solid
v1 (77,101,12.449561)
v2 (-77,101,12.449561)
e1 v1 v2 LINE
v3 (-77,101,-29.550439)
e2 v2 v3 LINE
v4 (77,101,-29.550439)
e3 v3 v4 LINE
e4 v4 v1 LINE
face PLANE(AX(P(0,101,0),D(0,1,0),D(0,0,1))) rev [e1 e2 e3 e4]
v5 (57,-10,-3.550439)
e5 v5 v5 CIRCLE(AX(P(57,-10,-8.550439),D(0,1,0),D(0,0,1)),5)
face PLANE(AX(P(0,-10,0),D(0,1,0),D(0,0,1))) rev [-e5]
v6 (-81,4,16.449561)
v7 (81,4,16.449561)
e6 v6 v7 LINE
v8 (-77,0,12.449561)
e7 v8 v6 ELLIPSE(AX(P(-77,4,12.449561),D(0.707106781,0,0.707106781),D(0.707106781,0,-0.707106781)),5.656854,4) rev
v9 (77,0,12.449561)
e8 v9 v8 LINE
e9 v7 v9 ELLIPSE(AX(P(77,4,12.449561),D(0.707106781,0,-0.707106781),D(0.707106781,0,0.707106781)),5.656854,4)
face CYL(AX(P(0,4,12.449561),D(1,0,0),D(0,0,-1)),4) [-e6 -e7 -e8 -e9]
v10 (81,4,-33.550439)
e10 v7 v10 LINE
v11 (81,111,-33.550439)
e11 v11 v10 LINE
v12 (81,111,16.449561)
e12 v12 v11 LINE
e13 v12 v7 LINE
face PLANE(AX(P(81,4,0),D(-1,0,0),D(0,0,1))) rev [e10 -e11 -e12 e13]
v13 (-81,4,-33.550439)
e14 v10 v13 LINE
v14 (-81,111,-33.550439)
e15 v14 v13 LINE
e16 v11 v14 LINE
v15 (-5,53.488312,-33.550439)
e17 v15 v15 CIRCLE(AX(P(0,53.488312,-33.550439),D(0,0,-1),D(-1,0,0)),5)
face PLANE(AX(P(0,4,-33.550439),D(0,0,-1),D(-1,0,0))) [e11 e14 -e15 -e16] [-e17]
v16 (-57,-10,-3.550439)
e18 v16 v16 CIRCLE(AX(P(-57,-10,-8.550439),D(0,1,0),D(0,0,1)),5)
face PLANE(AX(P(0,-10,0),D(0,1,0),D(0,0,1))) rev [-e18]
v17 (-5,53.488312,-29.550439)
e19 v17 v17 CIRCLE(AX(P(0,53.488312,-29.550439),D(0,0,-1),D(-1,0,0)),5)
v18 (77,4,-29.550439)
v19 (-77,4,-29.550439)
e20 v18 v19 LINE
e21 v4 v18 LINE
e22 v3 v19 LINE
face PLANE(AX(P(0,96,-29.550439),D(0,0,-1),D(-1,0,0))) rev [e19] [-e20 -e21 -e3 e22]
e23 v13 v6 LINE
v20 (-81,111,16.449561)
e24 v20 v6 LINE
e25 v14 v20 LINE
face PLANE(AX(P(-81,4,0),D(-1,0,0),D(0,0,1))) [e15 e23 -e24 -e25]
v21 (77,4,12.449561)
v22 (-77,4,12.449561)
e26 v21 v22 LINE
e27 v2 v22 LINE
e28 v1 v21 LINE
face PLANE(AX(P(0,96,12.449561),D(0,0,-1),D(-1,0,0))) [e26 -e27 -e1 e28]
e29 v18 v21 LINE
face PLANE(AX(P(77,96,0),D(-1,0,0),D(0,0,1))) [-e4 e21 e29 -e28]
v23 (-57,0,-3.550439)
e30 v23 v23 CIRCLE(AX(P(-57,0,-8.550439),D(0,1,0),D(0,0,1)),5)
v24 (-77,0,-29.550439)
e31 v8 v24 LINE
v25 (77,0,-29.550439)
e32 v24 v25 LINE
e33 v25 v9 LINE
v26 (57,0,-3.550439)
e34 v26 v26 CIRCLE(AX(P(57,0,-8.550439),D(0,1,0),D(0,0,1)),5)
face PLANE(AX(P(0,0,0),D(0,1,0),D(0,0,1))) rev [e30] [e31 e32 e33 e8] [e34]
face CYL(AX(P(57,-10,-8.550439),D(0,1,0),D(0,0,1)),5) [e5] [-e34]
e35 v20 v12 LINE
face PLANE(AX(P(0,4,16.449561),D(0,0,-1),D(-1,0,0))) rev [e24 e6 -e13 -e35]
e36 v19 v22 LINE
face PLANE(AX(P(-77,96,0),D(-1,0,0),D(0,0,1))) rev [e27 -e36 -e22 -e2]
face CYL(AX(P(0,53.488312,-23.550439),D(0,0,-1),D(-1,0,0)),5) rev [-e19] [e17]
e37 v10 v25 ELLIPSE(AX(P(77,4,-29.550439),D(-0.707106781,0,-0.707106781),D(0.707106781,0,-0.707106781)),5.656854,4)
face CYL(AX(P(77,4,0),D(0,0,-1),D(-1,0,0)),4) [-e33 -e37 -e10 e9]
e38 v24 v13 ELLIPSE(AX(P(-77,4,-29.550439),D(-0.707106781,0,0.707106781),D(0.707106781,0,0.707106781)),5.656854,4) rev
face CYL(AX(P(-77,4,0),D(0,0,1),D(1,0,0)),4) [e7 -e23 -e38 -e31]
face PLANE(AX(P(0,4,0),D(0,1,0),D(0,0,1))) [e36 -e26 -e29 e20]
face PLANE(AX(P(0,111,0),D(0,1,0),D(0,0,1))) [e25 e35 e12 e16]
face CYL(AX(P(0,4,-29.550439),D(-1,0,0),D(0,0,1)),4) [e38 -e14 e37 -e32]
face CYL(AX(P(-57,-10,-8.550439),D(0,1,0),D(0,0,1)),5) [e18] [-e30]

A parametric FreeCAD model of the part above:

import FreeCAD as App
import Part
import Sketcher

V = App.Vector
Q = App.Units.Quantity


def edges_at(feature, points):
    """Names of the edges that pass closest to the given points."""
    edges = feature.Shape.Edges
    near = lambda p: min(range(len(edges)), key=lambda i: edges[i].distToShape(Part.Vertex(*p))[0])
    return sorted({f"Edge{near(p) + 1}" for p in points})

doc = App.newDocument("Part")
body = doc.addObject("PartDesign::Body", "Body")

# Sketch on XZ plane
sketch1 = body.newObject("Sketcher::SketchObject", "Sketch")
sketch1.AttachmentSupport = (doc.getObject("XZ_Plane"), [""])
sketch1.MapMode = "FlatFace"
sketch1.addGeometry(Part.Circle(V(-57, -8.550439, 0), V(0, 0, 1), 5), False)
sketch1.addConstraint([
    Sketcher.Constraint("Diameter", 0, Q("10 mm")),
    Sketcher.Constraint("DistanceX", 0, 3, -1, 1, Q("57 mm")),
    Sketcher.Constraint("DistanceY", 0, 3, -1, 1, Q("8.550439 mm")),
])
pad1 = body.newObject("PartDesign::Pad", "Pad")
pad1.Profile = sketch1
pad1.Length = 10
body2 = doc.addObject("PartDesign::Body", "Body001")

# Sketch on XZ plane
sketch2 = body2.newObject("Sketcher::SketchObject", "Sketch001")
sketch2.AttachmentSupport = (doc.getObject("XZ_Plane001"), [""])
sketch2.MapMode = "FlatFace"
sketch2.addGeometry(Part.Circle(V(57, -8.550439, 0), V(0, 0, 1), 5), False)
sketch2.addConstraint([
    Sketcher.Constraint("Diameter", 0, Q("10 mm")),
    Sketcher.Constraint("DistanceX", -1, 1, 0, 3, Q("57 mm")),
    Sketcher.Constraint("DistanceY", 0, 3, -1, 1, Q("8.550439 mm")),
])
pad2 = body2.newObject("PartDesign::Pad", "Pad001")
pad2.Profile = sketch2
pad2.Length = 10
body.AllowCompound = True
doc.recompute()

boolean = body.newObject("PartDesign::Boolean", "Boolean")
boolean.Type = "Fuse"
boolean.addObjects([body2])

# Sketch on XZ plane
sketch3 = body.newObject("Sketcher::SketchObject", "Sketch002")
sketch3.AttachmentSupport = (doc.getObject("XZ_Plane"), [""])
sketch3.MapMode = "FlatFace"
sketch3.AttachmentOffset = App.Placement(V(0, 0, -4), App.Rotation())
sketch3.addGeometry([
    Part.LineSegment(V(-81, -33.550439, 0), V(-81, 16.449561, 0)),
    Part.LineSegment(V(-81, 16.449561, 0), V(81, 16.449561, 0)),
    Part.LineSegment(V(81, 16.449561, 0), V(81, -33.550439, 0)),
    Part.LineSegment(V(81, -33.550439, 0), V(-81, -33.550439, 0)),
], False)
sketch3.addConstraint([
    Sketcher.Constraint("Coincident", 0, 2, 1, 1),
    Sketcher.Constraint("Coincident", 1, 2, 2, 1),
    Sketcher.Constraint("Coincident", 2, 2, 3, 1),
    Sketcher.Constraint("Coincident", 3, 2, 0, 1),
    Sketcher.Constraint("Vertical", 0),
    Sketcher.Constraint("Horizontal", 1),
    Sketcher.Constraint("Vertical", 2),
    Sketcher.Constraint("Horizontal", 3),
    Sketcher.Constraint("DistanceX", 1, 1, 1, 2, Q("162 mm")),
    Sketcher.Constraint("DistanceY", 0, 1, 0, 2, Q("50 mm")),
    Sketcher.Constraint("DistanceX", 0, 2, -1, 1, Q("81 mm")),
    Sketcher.Constraint("DistanceY", -1, 1, 0, 2, Q("16.449561 mm")),
])
pad3 = body.newObject("PartDesign::Pad", "Pad002")
pad3.Profile = sketch3
pad3.Length = 4

# Sketch on XZ plane
sketch4 = body.newObject("Sketcher::SketchObject", "Sketch003")
sketch4.AttachmentSupport = (doc.getObject("XZ_Plane"), [""])
sketch4.MapMode = "FlatFace"
sketch4.addGeometry([
    Part.LineSegment(V(-81, -33.550439, 0), V(-81, 16.449561, 0)),  # 0
    Part.LineSegment(V(-81, 16.449561, 0), V(81, 16.449561, 0)),  # 1
    Part.LineSegment(V(81, 16.449561, 0), V(81, -33.550439, 0)),  # 2
    Part.LineSegment(V(81, -33.550439, 0), V(-81, -33.550439, 0)),  # 3
    Part.LineSegment(V(77, 12.449561, 0), V(-77, 12.449561, 0)),  # 4
    Part.LineSegment(V(-77, 12.449561, 0), V(-77, -29.550439, 0)),  # 5
    Part.LineSegment(V(-77, -29.550439, 0), V(77, -29.550439, 0)),  # 6
    Part.LineSegment(V(77, -29.550439, 0), V(77, 12.449561, 0)),  # 7
], False)
sketch4.addConstraint([
    Sketcher.Constraint("Coincident", 0, 2, 1, 1),
    Sketcher.Constraint("Coincident", 1, 2, 2, 1),
    Sketcher.Constraint("Coincident", 2, 2, 3, 1),
    Sketcher.Constraint("Coincident", 3, 2, 0, 1),
    Sketcher.Constraint("Coincident", 4, 2, 5, 1),
    Sketcher.Constraint("Coincident", 5, 2, 6, 1),
    Sketcher.Constraint("Coincident", 6, 2, 7, 1),
    Sketcher.Constraint("Coincident", 7, 2, 4, 1),
    Sketcher.Constraint("Vertical", 0),
    Sketcher.Constraint("Horizontal", 1),
    Sketcher.Constraint("Vertical", 2),
    Sketcher.Constraint("Horizontal", 3),
    Sketcher.Constraint("Horizontal", 4),
    Sketcher.Constraint("Vertical", 5),
    Sketcher.Constraint("Horizontal", 6),
    Sketcher.Constraint("Vertical", 7),
    Sketcher.Constraint("DistanceX", 1, 1, 1, 2, Q("162 mm")),
    Sketcher.Constraint("DistanceX", 4, 2, 4, 1, Q("154 mm")),
    Sketcher.Constraint("DistanceY", 0, 1, 0, 2, Q("50 mm")),
    Sketcher.Constraint("DistanceY", 5, 2, 5, 1, Q("42 mm")),
    Sketcher.Constraint("DistanceX", 0, 2, -1, 1, Q("81 mm")),
    Sketcher.Constraint("DistanceX", 4, 2, -1, 1, Q("77 mm")),
    Sketcher.Constraint("DistanceY", 4, 2, 0, 2, Q("4 mm")),
    Sketcher.Constraint("DistanceY", -1, 1, 0, 2, Q("16.449561 mm")),
])
pad4 = body.newObject("PartDesign::Pad", "Pad003")
pad4.Profile = sketch4
pad4.Length = 96
pad4.Reversed = True
doc.recompute()

fillet = body.newObject("PartDesign::Fillet", "Fillet")
fillet.Base = (pad4, edges_at(pad4, [
    (0, 0, 16.45),
    (81, 0, -8.55),
    (-81, 0, -8.55),
    (0, 0, -33.55),
]))
fillet.Radius = 4
body3 = doc.addObject("PartDesign::Body", "Body002")

# Sketch on XZ plane
sketch5 = body3.newObject("Sketcher::SketchObject", "Sketch004")
sketch5.AttachmentSupport = (doc.getObject("XZ_Plane002"), [""])
sketch5.MapMode = "FlatFace"
sketch5.AttachmentOffset = App.Placement(V(0, 0, -96), App.Rotation())
sketch5.addGeometry([
    Part.LineSegment(V(-81, -33.550439, 0), V(-81, 16.449561, 0)),  # 0
    Part.LineSegment(V(-81, 16.449561, 0), V(81, 16.449561, 0)),  # 1
    Part.LineSegment(V(81, 16.449561, 0), V(81, -33.550439, 0)),  # 2
    Part.LineSegment(V(81, -33.550439, 0), V(-81, -33.550439, 0)),  # 3
    Part.LineSegment(V(77, 12.449561, 0), V(-77, 12.449561, 0)),  # 4
    Part.LineSegment(V(-77, 12.449561, 0), V(-77, -29.550439, 0)),  # 5
    Part.LineSegment(V(-77, -29.550439, 0), V(77, -29.550439, 0)),  # 6
    Part.LineSegment(V(77, -29.550439, 0), V(77, 12.449561, 0)),  # 7
], False)
sketch5.addConstraint([
    Sketcher.Constraint("Coincident", 0, 2, 1, 1),
    Sketcher.Constraint("Coincident", 1, 2, 2, 1),
    Sketcher.Constraint("Coincident", 2, 2, 3, 1),
    Sketcher.Constraint("Coincident", 3, 2, 0, 1),
    Sketcher.Constraint("Coincident", 4, 2, 5, 1),
    Sketcher.Constraint("Coincident", 5, 2, 6, 1),
    Sketcher.Constraint("Coincident", 6, 2, 7, 1),
    Sketcher.Constraint("Coincident", 7, 2, 4, 1),
    Sketcher.Constraint("Vertical", 0),
    Sketcher.Constraint("Horizontal", 1),
    Sketcher.Constraint("Vertical", 2),
    Sketcher.Constraint("Horizontal", 3),
    Sketcher.Constraint("Horizontal", 4),
    Sketcher.Constraint("Vertical", 5),
    Sketcher.Constraint("Horizontal", 6),
    Sketcher.Constraint("Vertical", 7),
    Sketcher.Constraint("DistanceX", 1, 1, 1, 2, Q("162 mm")),
    Sketcher.Constraint("DistanceX", 4, 2, 4, 1, Q("154 mm")),
    Sketcher.Constraint("DistanceY", 0, 1, 0, 2, Q("50 mm")),
    Sketcher.Constraint("DistanceY", 5, 2, 5, 1, Q("42 mm")),
    Sketcher.Constraint("DistanceX", 0, 2, -1, 1, Q("81 mm")),
    Sketcher.Constraint("DistanceX", 4, 2, -1, 1, Q("77 mm")),
    Sketcher.Constraint("DistanceY", 4, 2, 0, 2, Q("4 mm")),
    Sketcher.Constraint("DistanceY", -1, 1, 0, 2, Q("16.449561 mm")),
])
pad5 = body3.newObject("PartDesign::Pad", "Pad004")
pad5.Profile = sketch5
pad5.Length = 5
pad5.Reversed = True
doc.recompute()

boolean2 = body.newObject("PartDesign::Boolean", "Boolean001")
boolean2.Type = "Fuse"
boolean2.addObjects([body3])

# Sketch on XZ plane
sketch6 = body.newObject("Sketcher::SketchObject", "Sketch005")
sketch6.AttachmentSupport = (doc.getObject("XZ_Plane"), [""])
sketch6.MapMode = "FlatFace"
sketch6.AttachmentOffset = App.Placement(V(0, 0, -96), App.Rotation())
sketch6.addGeometry([
    Part.LineSegment(V(-81, -33.550439, 0), V(-81, 16.449561, 0)),  # 0
    Part.LineSegment(V(-81, 16.449561, 0), V(81, 16.449561, 0)),  # 1
    Part.LineSegment(V(81, 16.449561, 0), V(81, -33.550439, 0)),  # 2
    Part.LineSegment(V(81, -33.550439, 0), V(-81, -33.550439, 0)),  # 3
    Part.LineSegment(V(77, 12.449561, 0), V(-77, 12.449561, 0)),  # 4
    Part.LineSegment(V(-77, 12.449561, 0), V(-77, -29.550439, 0)),  # 5
    Part.LineSegment(V(-77, -29.550439, 0), V(77, -29.550439, 0)),  # 6
    Part.LineSegment(V(77, -29.550439, 0), V(77, 12.449561, 0)),  # 7
], False)
sketch6.addConstraint([
    Sketcher.Constraint("Coincident", 0, 2, 1, 1),
    Sketcher.Constraint("Coincident", 1, 2, 2, 1),
    Sketcher.Constraint("Coincident", 2, 2, 3, 1),
    Sketcher.Constraint("Coincident", 3, 2, 0, 1),
    Sketcher.Constraint("Coincident", 4, 2, 5, 1),
    Sketcher.Constraint("Coincident", 5, 2, 6, 1),
    Sketcher.Constraint("Coincident", 6, 2, 7, 1),
    Sketcher.Constraint("Coincident", 7, 2, 4, 1),
    Sketcher.Constraint("Vertical", 0),
    Sketcher.Constraint("Horizontal", 1),
    Sketcher.Constraint("Vertical", 2),
    Sketcher.Constraint("Horizontal", 3),
    Sketcher.Constraint("Horizontal", 4),
    Sketcher.Constraint("Vertical", 5),
    Sketcher.Constraint("Horizontal", 6),
    Sketcher.Constraint("Vertical", 7),
    Sketcher.Constraint("DistanceX", 1, 1, 1, 2, Q("162 mm")),
    Sketcher.Constraint("DistanceX", 4, 2, 4, 1, Q("154 mm")),
    Sketcher.Constraint("DistanceY", 0, 1, 0, 2, Q("50 mm")),
    Sketcher.Constraint("DistanceY", 5, 2, 5, 1, Q("42 mm")),
    Sketcher.Constraint("DistanceX", 0, 2, -1, 1, Q("81 mm")),
    Sketcher.Constraint("DistanceX", 4, 2, -1, 1, Q("77 mm")),
    Sketcher.Constraint("DistanceY", 4, 2, 0, 2, Q("4 mm")),
    Sketcher.Constraint("DistanceY", -1, 1, 0, 2, Q("16.449561 mm")),
])
pad6 = body.newObject("PartDesign::Pad", "Pad005")
pad6.Profile = sketch6
pad6.Length = 5
pad6.Reversed = True

# Sketch on XY plane
sketch7 = body.newObject("Sketcher::SketchObject", "Sketch006")
sketch7.AttachmentSupport = (doc.getObject("XY_Plane"), [""])
sketch7.MapMode = "FlatFace"
sketch7.AttachmentOffset = App.Placement(V(0, 0, -33.550439), App.Rotation())
sketch7.addGeometry(Part.Circle(V(0, 53.488312, 0), V(0, 0, 1), 5), False)
sketch7.addConstraint([
    Sketcher.Constraint("PointOnObject", 0, 3, -2),
    Sketcher.Constraint("Diameter", 0, Q("10 mm")),
    Sketcher.Constraint("DistanceY", -1, 1, 0, 3, Q("53.488312 mm")),
])
pocket1 = body.newObject("PartDesign::Pocket", "Pocket")
pocket1.Profile = sketch7
pocket1.Length = 10
pocket1.Reversed = True

# Sketch on XZ plane
sketch8 = body.newObject("Sketcher::SketchObject", "Sketch007")
sketch8.AttachmentSupport = (doc.getObject("XZ_Plane"), [""])
sketch8.MapMode = "FlatFace"
sketch8.AttachmentOffset = App.Placement(V(0, 0, -101), App.Rotation())
sketch8.addGeometry([
    Part.LineSegment(V(-81, -33.550439, 0), V(-81, 16.449561, 0)),
    Part.LineSegment(V(-81, 16.449561, 0), V(81, 16.449561, 0)),
    Part.LineSegment(V(81, 16.449561, 0), V(81, -33.550439, 0)),
    Part.LineSegment(V(81, -33.550439, 0), V(-81, -33.550439, 0)),
], False)
sketch8.addConstraint([
    Sketcher.Constraint("Coincident", 0, 2, 1, 1),
    Sketcher.Constraint("Coincident", 1, 2, 2, 1),
    Sketcher.Constraint("Coincident", 2, 2, 3, 1),
    Sketcher.Constraint("Coincident", 3, 2, 0, 1),
    Sketcher.Constraint("Vertical", 0),
    Sketcher.Constraint("Horizontal", 1),
    Sketcher.Constraint("Vertical", 2),
    Sketcher.Constraint("Horizontal", 3),
    Sketcher.Constraint("DistanceX", 1, 1, 1, 2, Q("162 mm")),
    Sketcher.Constraint("DistanceY", 0, 1, 0, 2, Q("50 mm")),
    Sketcher.Constraint("DistanceX", 0, 2, -1, 1, Q("81 mm")),
    Sketcher.Constraint("DistanceY", -1, 1, 0, 2, Q("16.449561 mm")),
])
pad7 = body.newObject("PartDesign::Pad", "Pad006")
pad7.Profile = sketch8
pad7.Length = 10
pad7.Reversed = True

doc.recompute()
